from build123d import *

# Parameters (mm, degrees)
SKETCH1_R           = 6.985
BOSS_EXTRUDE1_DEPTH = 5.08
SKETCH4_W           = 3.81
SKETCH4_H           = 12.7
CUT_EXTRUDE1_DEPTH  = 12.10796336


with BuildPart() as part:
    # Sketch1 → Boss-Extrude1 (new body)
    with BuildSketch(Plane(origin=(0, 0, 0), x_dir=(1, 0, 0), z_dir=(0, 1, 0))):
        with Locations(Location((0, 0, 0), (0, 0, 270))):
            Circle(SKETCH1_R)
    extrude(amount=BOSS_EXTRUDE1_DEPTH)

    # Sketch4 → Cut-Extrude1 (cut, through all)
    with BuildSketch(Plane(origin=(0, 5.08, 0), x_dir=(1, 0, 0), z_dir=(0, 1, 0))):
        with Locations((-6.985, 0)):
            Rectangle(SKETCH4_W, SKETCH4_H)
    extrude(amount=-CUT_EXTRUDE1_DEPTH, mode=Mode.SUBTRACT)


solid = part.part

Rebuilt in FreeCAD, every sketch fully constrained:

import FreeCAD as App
import Part
import Sketcher

V = App.Vector
Q = App.Units.Quantity

doc = App.newDocument("Part")
params = doc.addObject("Spreadsheet::Sheet", "Params")
for row, (alias, value) in enumerate([
    ("sketch1_diameter", "0.55 in"),
    ("pad1_length", "0.2 in"),
    ("sketch2_height", "0.5 in"),
    ("sketch2_width", "0.15 in"),
], start=1):
    params.set(f"A{row}", alias)
    params.set(f"B{row}", "=" + value)
    params.setAlias(f"B{row}", alias)

body = doc.addObject("PartDesign::Body", "Body")

# Sketch on XZ plane
sketch1 = body.newObject("Sketcher::SketchObject", "Sketch")
sketch1.AttachmentSupport = (doc.getObject("XZ_Plane"), [""])
sketch1.MapMode = "FlatFace"
sketch1.addGeometry(Part.Circle(V(0, 0, 0), V(0, 0, 1), 7), False)
sketch1.addConstraint([
    Sketcher.Constraint("Coincident", 0, 3, -1, 1),
    Sketcher.Constraint("Diameter", 0, Q("0.55 in")),
])
sketch1.setExpression("Constraints[1]", "Params.sketch1_diameter")
pad1 = body.newObject("PartDesign::Pad", "Pad")
pad1.Profile = sketch1
pad1.setExpression("Length", "Params.pad1_length")
pad1.Reversed = True

# Sketch on XZ plane
sketch2 = body.newObject("Sketcher::SketchObject", "Sketch001")
sketch2.AttachmentSupport = (doc.getObject("XZ_Plane"), [""])
sketch2.MapMode = "FlatFace"
sketch2.AttachmentOffset = App.Placement(V(0, 0, -0.2 * 25.4), App.Rotation())
sketch2.addGeometry([
    Part.LineSegment(V(-8.9, -6.3, 0), V(-8.9, 6.3, 0)),
    Part.LineSegment(V(-8.9, 6.3, 0), V(-5.1, 6.3, 0)),
    Part.LineSegment(V(-5.1, 6.3, 0), V(-5.1, -6.3, 0)),
    Part.LineSegment(V(-5.1, -6.3, 0), V(-8.9, -6.3, 0)),
], False)
sketch2.addConstraint([
    Sketcher.Constraint("Coincident", 0, 2, 1, 1),
    Sketcher.Constraint("Coincident", 1, 2, 2, 1),
    Sketcher.Constraint("Coincident", 2, 2, 3, 1),
    Sketcher.Constraint("Coincident", 3, 2, 0, 1),
    Sketcher.Constraint("Vertical", 0),
    Sketcher.Constraint("Horizontal", 1),
    Sketcher.Constraint("Vertical", 2),
    Sketcher.Constraint("Horizontal", 3),
    Sketcher.Constraint("DistanceY", 0, 1, 0, 2, Q("0.5 in")),
    Sketcher.Constraint("DistanceX", 1, 1, 1, 2, Q("0.15 in")),
    Sketcher.Constraint("DistanceX", 1, 2, -1, 1, Q("0.2 in")),
    Sketcher.Constraint("DistanceY", -1, 1, 0, 2, Q("0.25 in")),
])
sketch2.setExpression("Constraints[8]", "Params.sketch2_height")
sketch2.setExpression("Constraints[9]", "Params.sketch2_width")
pocket1 = body.newObject("PartDesign::Pocket", "Pocket")
pocket1.Profile = sketch2
pocket1.Type = "ThroughAll"
pocket1.Reversed = True

doc.recompute()
